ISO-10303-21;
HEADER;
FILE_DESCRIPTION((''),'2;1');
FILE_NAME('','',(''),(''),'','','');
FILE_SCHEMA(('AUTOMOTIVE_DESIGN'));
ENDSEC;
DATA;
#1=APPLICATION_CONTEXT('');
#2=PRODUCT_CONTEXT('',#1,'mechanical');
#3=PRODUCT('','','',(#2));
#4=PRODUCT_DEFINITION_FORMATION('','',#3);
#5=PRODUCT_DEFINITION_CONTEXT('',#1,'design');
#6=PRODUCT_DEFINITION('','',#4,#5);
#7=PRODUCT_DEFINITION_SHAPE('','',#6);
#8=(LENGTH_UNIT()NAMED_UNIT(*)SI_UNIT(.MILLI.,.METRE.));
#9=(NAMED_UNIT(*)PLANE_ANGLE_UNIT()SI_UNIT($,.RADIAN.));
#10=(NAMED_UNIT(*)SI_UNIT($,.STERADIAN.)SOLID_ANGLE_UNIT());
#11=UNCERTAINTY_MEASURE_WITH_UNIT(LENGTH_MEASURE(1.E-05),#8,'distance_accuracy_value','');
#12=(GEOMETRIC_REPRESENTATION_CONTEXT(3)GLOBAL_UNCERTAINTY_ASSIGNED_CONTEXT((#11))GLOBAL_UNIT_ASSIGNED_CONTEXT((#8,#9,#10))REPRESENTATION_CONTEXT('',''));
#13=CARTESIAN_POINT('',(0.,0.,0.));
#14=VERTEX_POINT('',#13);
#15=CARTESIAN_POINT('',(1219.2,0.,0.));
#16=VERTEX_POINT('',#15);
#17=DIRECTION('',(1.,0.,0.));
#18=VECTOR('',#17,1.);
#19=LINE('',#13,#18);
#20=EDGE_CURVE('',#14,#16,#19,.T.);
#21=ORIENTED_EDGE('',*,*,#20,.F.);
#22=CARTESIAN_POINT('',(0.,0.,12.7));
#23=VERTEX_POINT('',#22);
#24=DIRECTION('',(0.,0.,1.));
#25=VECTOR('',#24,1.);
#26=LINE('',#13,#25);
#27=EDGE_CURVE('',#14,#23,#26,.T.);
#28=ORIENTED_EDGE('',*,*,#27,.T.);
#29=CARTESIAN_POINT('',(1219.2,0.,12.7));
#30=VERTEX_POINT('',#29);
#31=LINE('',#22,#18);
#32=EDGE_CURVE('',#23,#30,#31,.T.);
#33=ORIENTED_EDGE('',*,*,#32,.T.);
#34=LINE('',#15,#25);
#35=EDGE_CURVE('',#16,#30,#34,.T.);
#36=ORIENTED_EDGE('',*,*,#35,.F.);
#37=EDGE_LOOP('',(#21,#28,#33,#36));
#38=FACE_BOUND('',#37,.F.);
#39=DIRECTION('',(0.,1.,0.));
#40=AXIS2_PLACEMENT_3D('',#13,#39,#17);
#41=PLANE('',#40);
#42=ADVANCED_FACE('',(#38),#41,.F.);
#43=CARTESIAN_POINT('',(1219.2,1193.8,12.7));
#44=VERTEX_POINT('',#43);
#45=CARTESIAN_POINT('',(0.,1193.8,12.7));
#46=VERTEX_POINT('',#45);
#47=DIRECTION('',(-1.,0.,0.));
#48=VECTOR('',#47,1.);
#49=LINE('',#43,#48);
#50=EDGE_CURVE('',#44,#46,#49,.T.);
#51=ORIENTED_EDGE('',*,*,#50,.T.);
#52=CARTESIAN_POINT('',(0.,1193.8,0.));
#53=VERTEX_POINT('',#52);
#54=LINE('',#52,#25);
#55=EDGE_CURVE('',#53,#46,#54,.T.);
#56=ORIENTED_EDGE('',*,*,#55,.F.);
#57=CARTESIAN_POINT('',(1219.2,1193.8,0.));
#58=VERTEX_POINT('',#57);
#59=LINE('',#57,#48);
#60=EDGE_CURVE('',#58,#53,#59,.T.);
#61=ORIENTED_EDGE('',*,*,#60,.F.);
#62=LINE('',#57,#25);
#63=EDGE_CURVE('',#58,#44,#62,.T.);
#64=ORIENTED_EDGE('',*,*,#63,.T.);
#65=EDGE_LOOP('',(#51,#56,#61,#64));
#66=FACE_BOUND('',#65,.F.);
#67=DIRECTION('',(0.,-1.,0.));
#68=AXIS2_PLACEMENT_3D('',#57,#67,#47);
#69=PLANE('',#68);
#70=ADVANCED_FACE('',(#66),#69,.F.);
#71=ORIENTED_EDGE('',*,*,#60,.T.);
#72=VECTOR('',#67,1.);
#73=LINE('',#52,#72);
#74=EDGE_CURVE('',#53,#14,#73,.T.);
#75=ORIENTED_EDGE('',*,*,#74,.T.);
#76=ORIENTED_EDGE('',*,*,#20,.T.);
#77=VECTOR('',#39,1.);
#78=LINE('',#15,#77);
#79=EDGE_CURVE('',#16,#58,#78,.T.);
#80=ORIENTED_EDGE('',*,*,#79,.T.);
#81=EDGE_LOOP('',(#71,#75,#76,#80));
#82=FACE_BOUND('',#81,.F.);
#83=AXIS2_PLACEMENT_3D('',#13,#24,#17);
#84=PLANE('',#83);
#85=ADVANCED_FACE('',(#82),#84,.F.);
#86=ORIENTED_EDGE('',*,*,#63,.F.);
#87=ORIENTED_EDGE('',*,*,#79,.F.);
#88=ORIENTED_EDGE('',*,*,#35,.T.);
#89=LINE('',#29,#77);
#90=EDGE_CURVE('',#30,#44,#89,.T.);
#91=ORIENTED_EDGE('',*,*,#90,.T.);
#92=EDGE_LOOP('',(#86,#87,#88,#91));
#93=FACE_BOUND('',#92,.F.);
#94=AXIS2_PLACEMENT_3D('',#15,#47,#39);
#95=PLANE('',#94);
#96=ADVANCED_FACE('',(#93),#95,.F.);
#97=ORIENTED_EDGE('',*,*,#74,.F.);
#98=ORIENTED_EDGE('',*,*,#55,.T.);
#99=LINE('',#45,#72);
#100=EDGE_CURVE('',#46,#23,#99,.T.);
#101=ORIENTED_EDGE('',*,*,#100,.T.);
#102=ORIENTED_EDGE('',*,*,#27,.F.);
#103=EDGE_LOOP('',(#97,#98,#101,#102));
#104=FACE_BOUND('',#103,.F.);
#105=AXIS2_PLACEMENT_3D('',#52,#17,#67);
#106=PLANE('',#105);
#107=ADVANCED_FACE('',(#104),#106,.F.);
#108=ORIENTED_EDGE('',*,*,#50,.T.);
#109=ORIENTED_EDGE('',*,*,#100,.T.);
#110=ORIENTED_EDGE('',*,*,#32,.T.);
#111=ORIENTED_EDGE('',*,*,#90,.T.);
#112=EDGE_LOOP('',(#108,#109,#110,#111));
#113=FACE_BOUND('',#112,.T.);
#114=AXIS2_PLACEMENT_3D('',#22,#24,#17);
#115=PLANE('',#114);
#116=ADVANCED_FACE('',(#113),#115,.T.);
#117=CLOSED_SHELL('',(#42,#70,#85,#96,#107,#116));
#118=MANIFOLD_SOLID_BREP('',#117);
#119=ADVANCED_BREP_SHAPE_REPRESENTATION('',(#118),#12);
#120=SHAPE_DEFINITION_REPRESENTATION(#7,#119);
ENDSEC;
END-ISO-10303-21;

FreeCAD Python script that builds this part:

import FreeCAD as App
import Part
import Sketcher

V = App.Vector
Q = App.Units.Quantity


def add_polygon(sketch, points):
    """Adds a closed chain of lines whose ends are joined by coincident constraints."""
    first, n = sketch.GeometryCount, len(points)
    for a, b in zip(points, points[1:] + points[:1]):
        sketch.addGeometry(Part.LineSegment(App.Vector(*a, 0), App.Vector(*b, 0)), False)
    for i in range(n):
        sketch.addConstraint(Sketcher.Constraint("Coincident", first + i, 2, first + (i + 1) % n, 1))

doc = App.newDocument("Part")
body = doc.addObject("PartDesign::Body", "Body")

# Sketch on XY plane
sketch1 = body.newObject("Sketcher::SketchObject", "Sketch")
sketch1.AttachmentSupport = (doc.getObject("XY_Plane"), [""])
sketch1.MapMode = "FlatFace"
add_polygon(sketch1, [(0, 1194), (0, 0), (1219, 0), (1219, 1194)])  # lines 0-3
sketch1.addConstraint([
    Sketcher.Constraint("Vertical", 0),
    Sketcher.Constraint("Horizontal", 1),
    Sketcher.Constraint("Vertical", 2),
    Sketcher.Constraint("Horizontal", 3),
    Sketcher.Constraint("Coincident", 0, 2, -1, 1),
    Sketcher.Constraint("DistanceX", 1, 1, 1, 2, Q("48 in")),
    Sketcher.Constraint("DistanceY", 0, 2, 0, 1, Q("47 in")),
])
pad1 = body.newObject("PartDesign::Pad", "Pad")
pad1.Profile = sketch1
pad1.Length = Q("0.5 in")

doc.recompute()
